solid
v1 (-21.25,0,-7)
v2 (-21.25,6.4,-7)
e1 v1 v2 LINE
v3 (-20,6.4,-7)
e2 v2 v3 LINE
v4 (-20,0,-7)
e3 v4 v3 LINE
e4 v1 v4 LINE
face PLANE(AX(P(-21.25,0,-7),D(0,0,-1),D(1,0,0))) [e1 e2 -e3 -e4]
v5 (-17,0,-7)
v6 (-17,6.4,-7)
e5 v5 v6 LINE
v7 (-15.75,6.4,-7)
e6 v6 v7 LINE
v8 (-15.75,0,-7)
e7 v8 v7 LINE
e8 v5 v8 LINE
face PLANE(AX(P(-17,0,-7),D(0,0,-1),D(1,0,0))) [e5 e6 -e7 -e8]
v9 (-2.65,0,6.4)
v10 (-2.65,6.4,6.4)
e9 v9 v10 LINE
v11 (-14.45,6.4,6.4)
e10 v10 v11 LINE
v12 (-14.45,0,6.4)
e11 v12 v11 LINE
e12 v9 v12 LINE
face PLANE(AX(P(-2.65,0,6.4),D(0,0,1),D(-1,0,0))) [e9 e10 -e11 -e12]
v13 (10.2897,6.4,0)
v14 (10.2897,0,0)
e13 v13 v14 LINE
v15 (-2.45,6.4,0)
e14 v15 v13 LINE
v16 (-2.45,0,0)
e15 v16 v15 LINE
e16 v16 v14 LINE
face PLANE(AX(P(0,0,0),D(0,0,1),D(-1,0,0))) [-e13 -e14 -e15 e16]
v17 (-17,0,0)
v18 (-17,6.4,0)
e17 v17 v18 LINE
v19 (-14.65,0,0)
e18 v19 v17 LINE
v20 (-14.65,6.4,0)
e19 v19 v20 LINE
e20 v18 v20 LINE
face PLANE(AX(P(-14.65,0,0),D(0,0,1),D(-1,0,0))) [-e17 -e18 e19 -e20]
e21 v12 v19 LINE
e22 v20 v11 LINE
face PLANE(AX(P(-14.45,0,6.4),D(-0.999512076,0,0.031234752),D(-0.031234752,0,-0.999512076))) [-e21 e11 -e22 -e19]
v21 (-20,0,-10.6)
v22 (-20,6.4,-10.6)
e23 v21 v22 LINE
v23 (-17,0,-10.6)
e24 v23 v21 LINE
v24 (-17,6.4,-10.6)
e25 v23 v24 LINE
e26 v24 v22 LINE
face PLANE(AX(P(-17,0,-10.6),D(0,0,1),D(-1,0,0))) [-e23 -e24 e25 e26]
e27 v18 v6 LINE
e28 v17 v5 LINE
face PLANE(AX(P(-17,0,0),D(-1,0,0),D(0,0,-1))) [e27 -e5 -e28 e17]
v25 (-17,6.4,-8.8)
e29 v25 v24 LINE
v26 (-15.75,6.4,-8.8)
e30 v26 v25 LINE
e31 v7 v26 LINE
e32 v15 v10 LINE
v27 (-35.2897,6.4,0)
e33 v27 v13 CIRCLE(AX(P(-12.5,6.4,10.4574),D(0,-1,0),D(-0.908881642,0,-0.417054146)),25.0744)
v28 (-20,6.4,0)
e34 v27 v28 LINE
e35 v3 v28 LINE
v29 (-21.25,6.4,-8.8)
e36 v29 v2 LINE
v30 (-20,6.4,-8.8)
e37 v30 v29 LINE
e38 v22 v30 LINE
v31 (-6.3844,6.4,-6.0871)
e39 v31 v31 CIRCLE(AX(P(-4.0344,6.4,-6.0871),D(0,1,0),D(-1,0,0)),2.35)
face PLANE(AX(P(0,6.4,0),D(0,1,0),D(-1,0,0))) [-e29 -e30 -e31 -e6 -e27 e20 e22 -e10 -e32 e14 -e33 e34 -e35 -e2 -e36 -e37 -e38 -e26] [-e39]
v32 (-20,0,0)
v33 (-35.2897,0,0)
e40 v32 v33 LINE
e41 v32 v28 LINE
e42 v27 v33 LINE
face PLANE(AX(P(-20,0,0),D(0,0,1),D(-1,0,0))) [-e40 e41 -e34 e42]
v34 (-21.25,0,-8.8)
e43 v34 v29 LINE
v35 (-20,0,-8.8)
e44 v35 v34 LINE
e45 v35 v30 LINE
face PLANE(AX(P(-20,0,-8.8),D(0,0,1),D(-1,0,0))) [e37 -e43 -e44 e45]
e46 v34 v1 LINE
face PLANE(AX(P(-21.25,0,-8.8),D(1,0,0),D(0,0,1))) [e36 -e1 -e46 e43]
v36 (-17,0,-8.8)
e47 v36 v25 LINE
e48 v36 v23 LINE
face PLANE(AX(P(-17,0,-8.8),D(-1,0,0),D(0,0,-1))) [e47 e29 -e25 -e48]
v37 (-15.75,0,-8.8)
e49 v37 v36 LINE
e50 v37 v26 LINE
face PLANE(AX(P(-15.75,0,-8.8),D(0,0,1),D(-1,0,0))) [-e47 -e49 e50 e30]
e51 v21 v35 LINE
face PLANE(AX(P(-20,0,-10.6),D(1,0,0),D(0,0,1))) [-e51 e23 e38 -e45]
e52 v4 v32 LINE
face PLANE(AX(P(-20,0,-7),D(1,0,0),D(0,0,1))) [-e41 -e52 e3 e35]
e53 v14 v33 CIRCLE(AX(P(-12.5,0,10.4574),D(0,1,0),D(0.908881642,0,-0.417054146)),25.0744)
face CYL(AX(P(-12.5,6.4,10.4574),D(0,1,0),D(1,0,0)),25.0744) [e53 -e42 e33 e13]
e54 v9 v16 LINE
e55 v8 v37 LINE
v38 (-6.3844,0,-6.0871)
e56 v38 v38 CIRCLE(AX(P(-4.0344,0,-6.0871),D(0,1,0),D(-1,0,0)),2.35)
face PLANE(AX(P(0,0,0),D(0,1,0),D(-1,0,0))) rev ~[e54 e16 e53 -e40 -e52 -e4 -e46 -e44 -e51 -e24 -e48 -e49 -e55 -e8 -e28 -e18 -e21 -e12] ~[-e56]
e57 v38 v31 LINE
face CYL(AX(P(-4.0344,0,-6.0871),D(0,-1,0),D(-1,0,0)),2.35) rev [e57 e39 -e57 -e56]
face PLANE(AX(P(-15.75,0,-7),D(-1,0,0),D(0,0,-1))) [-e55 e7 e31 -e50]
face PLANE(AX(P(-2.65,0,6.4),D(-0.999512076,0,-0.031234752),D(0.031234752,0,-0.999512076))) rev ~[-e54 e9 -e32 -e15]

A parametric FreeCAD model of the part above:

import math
import FreeCAD as App
import Part
import Sketcher

V = App.Vector
Q = App.Units.Quantity


def edges_at(feature, points):
    """Names of the edges that pass closest to the given points."""
    edges = feature.Shape.Edges
    near = lambda p: min(range(len(edges)), key=lambda i: edges[i].distToShape(Part.Vertex(*p))[0])
    return sorted({f"Edge{near(p) + 1}" for p in points})


def add_polygon(sketch, points):
    """Adds a closed chain of lines whose ends are joined by coincident constraints."""
    first, n = sketch.GeometryCount, len(points)
    for a, b in zip(points, points[1:] + points[:1]):
        sketch.addGeometry(Part.LineSegment(App.Vector(*a, 0), App.Vector(*b, 0)), False)
    for i in range(n):
        sketch.addConstraint(Sketcher.Constraint("Coincident", first + i, 2, first + (i + 1) % n, 1))

doc = App.newDocument("Part")
body = doc.addObject("PartDesign::Body", "Body")

sketch1 = body.newObject("Sketcher::SketchObject", "Sketch")
sketch1.AttachmentSupport = (doc.getObject("XZ_Plane"), [""])
sketch1.MapMode = "FlatFace"
add_polygon(sketch1, [(-2.35, 0), (0, 0), (0, -15), (-25, -15), (-25, 0), (-20, 0), (-20, -7), (-21.25, -7), (-21.25, -8.8), (-20, -8.8), (-20, -10.6), (-17, -10.6), (-17, -8.8), (-15.75, -8.8), (-15.75, -7), (-17, -7), (-17, 0), (-14.75, 0), (-14.45, 6.4), (-2.65, 6.4)])
sketch1.addGeometry(Part.Circle(V(-4.0344, -6.0871, 0), V(0, 0, 1), 2.35), False)
sketch1.addConstraint(Sketcher.Constraint("Horizontal", 0))
sketch1.addConstraint(Sketcher.Constraint("Vertical", 1))
sketch1.addConstraint(Sketcher.Constraint("Horizontal", 2))
sketch1.addConstraint(Sketcher.Constraint("Vertical", 3))
sketch1.addConstraint(Sketcher.Constraint("Horizontal", 4))
sketch1.addConstraint(Sketcher.Constraint("Vertical", 5))
sketch1.addConstraint(Sketcher.Constraint("Horizontal", 6))
sketch1.addConstraint(Sketcher.Constraint("Vertical", 7))
sketch1.addConstraint(Sketcher.Constraint("Horizontal", 8))
sketch1.addConstraint(Sketcher.Constraint("Vertical", 9))
sketch1.addConstraint(Sketcher.Constraint("Horizontal", 10))
sketch1.addConstraint(Sketcher.Constraint("Vertical", 11))
sketch1.addConstraint(Sketcher.Constraint("Horizontal", 12))
sketch1.addConstraint(Sketcher.Constraint("Vertical", 13))
sketch1.addConstraint(Sketcher.Constraint("Horizontal", 14))
sketch1.addConstraint(Sketcher.Constraint("Vertical", 15))
sketch1.addConstraint(Sketcher.Constraint("Horizontal", 16))
sketch1.addConstraint(Sketcher.Constraint("Horizontal", 18))
sketch1.addConstraint(Sketcher.Constraint("Coincident", 0, 2, -1, 1))
sketch1.addConstraint(Sketcher.Constraint("PointOnObject", 3, 2, -1))
sketch1.addConstraint(Sketcher.Constraint("PointOnObject", 15, 2, -1))
sketch1.addConstraint(Sketcher.Constraint("Horizontal", 8, 2, 11, 2))
sketch1.addConstraint(Sketcher.Constraint("Horizontal", 6, 2, 13, 2))
sketch1.addConstraint(Sketcher.Constraint("Vertical", 5, 2, 8, 2))
sketch1.addConstraint(Sketcher.Constraint("Vertical", 11, 2, 14, 2))
sketch1.addConstraint(Sketcher.Constraint("Equal", 8, 12))
sketch1.addConstraint(Sketcher.Constraint("Equal", 7, 9))
sketch1.addConstraint(Sketcher.Constraint("Equal", 17, 19))
sketch1.addConstraint(Sketcher.Constraint("Diameter", 20, 4.7))
sketch1.addConstraint(Sketcher.Constraint("DistanceX", 2, 2, 2, 1, 25.0))
sketch1.addConstraint(Sketcher.Constraint("DistanceX", 4, 1, 4, 2, 5.0))
sketch1.addConstraint(Sketcher.Constraint("DistanceX", 10, 1, 10, 2, 3.0))
sketch1.addConstraint(Sketcher.Constraint("DistanceY", 1, 2, 1, 1, 15.0))
sketch1.addConstraint(Sketcher.Constraint("DistanceY", 5, 2, 5, 1, 7.0))
sketch1.addConstraint(Sketcher.Constraint("DistanceX", 18, 1, 18, 2, 11.8))
sketch1.addConstraint(Sketcher.Constraint("DistanceY", 7, 2, 7, 1, 1.8))
sketch1.addConstraint(Sketcher.Constraint("DistanceX", 0, 1, 0, 2, 2.35))
sketch1.addConstraint(Sketcher.Constraint("DistanceX", 6, 2, 6, 1, 1.25))
sketch1.addConstraint(Sketcher.Constraint("DistanceX", 16, 1, 16, 2, 2.25))
sketch1.addConstraint(Sketcher.Constraint("DistanceY", -1, 1, 17, 2, 6.4))
sketch1.addConstraint(Sketcher.Constraint("DistanceY", 20, 3, -1, 1, 6.087))
sketch1.addConstraint(Sketcher.Constraint("DistanceX", 20, 3, -1, 1, 4.0344))
pad1 = body.newObject("PartDesign::Pad", "Pad")
pad1.Profile = sketch1
pad1.Length = 6.4
pad1.Reversed = True
doc.recompute()

fillet = body.newObject("PartDesign::Fillet", "Fillet")
fillet.Base = (pad1, edges_at(pad1, [(-25, 3.2, -15), (0, 3.2, -15)]))
fillet.Radius = 2

sketch2 = body.newObject("Sketcher::SketchObject", "Sketch001")
sketch2.AttachmentSupport = (doc.getObject("XZ_Plane"), [""])
sketch2.MapMode = "FlatFace"
sketch2.AttachmentOffset = App.Placement(V(0, 0, -6.4), App.Rotation())
sketch2.addGeometry(Part.LineSegment(V(-25, 0, 0), V(-25, -11.2791, 0)), False)
sketch2.addGeometry(Part.ArcOfCircle(Part.Circle(V(-12.5, 10.4574, 0), V(0, 0, 1), 25.0744), math.radians(-155.351257), math.radians(-119.901898)), False)
sketch2.addGeometry(Part.LineSegment(V(-35.2897, 0, 0), V(-25, 0, 0)), False)
sketch2.addGeometry(Part.ArcOfCircle(Part.Circle(V(-12.5, 10.4574, 0), V(0, 0, 1), 25.0744), math.radians(-60.098102), math.radians(-24.648743)), False)
sketch2.addGeometry(Part.LineSegment(V(0, -11.2791, 0), V(0, 0, 0)), False)
sketch2.addGeometry(Part.LineSegment(V(0, 0, 0), V(10.2897, 0, 0)), False)
sketch2.addConstraint(Sketcher.Constraint("Coincident", 0, 2, 1, 2))
sketch2.addConstraint(Sketcher.Constraint("Coincident", 1, 1, 2, 1))
sketch2.addConstraint(Sketcher.Constraint("Coincident", 2, 2, 0, 1))
sketch2.addConstraint(Sketcher.Constraint("Coincident", 3, 1, 4, 1))
sketch2.addConstraint(Sketcher.Constraint("Coincident", 4, 2, 5, 1))
sketch2.addConstraint(Sketcher.Constraint("Coincident", 5, 2, 3, 2))
sketch2.addConstraint(Sketcher.Constraint("Vertical", 0))
sketch2.addConstraint(Sketcher.Constraint("Horizontal", 2))
sketch2.addConstraint(Sketcher.Constraint("Vertical", 4))
sketch2.addConstraint(Sketcher.Constraint("Horizontal", 5))
sketch2.addConstraint(Sketcher.Constraint("Coincident", 4, 2, -1, 1))
sketch2.addConstraint(Sketcher.Constraint("Coincident", 3, 3, 1, 3))
sketch2.addConstraint(Sketcher.Constraint("Equal", 1, 3))
sketch2.addConstraint(Sketcher.Constraint("PointOnObject", 1, 1, -1))
sketch2.addConstraint(Sketcher.Constraint("Horizontal", 0, 2, 3, 1))
sketch2.addConstraint(Sketcher.Constraint("DistanceX", 1, 3, -1, 1, 12.5))
sketch2.addConstraint(Sketcher.Constraint("Radius", 1, 25.0744))
sketch2.addConstraint(Sketcher.Constraint("DistanceY", 0, 2, 0, 1, 11.279))
pad2 = body.newObject("PartDesign::Pad", "Pad001")
pad2.Profile = sketch2
pad2.Length = 6.4

sketch3 = body.newObject("Sketcher::SketchObject", "Sketch002")
sketch3.AttachmentSupport = (doc.getObject("XZ_Plane"), [""])
sketch3.MapMode = "FlatFace"
sketch3.AttachmentOffset = App.Placement(V(0, 0, -6.4), App.Rotation())
sketch3.addGeometry(Part.LineSegment(V(0, -11.2791, 0), V(0, -13, 0)), False)
sketch3.addGeometry(Part.ArcOfCircle(Part.Circle(V(-2, -13, 0), V(0, 0, 1), 2), math.radians(-90), math.radians(0)), False)
sketch3.addGeometry(Part.LineSegment(V(-2, -15, 0), V(-23, -15, 0)), False)
sketch3.addGeometry(Part.ArcOfCircle(Part.Circle(V(-23, -13, 0), V(0, 0, 1), 2), math.radians(180), math.radians(270)), False)
sketch3.addGeometry(Part.LineSegment(V(-25, -13, 0), V(-25, -11.2791, 0)), False)
sketch3.addGeometry(Part.ArcOfCircle(Part.Circle(V(-12.5, 10.4574, 0), V(0, 0, 1), 25.0744), math.radians(-119.901898), math.radians(-60.098102)), False)
sketch3.addConstraint(Sketcher.Constraint("Tangent", 0, 2, 1, 2))
sketch3.addConstraint(Sketcher.Constraint("Tangent", 1, 1, 2, 1))
sketch3.addConstraint(Sketcher.Constraint("Tangent", 2, 2, 3, 2))
sketch3.addConstraint(Sketcher.Constraint("Tangent", 3, 1, 4, 1))
sketch3.addConstraint(Sketcher.Constraint("Coincident", 4, 2, 5, 1))
sketch3.addConstraint(Sketcher.Constraint("Coincident", 5, 2, 0, 1))
sketch3.addConstraint(Sketcher.Constraint("Vertical", 0))
sketch3.addConstraint(Sketcher.Constraint("Horizontal", 2))
sketch3.addConstraint(Sketcher.Constraint("Vertical", 4))
sketch3.addConstraint(Sketcher.Constraint("Equal", 1, 3))
sketch3.addConstraint(Sketcher.Constraint("PointOnObject", 0, 2, -2))
sketch3.addConstraint(Sketcher.Constraint("Horizontal", 4, 2, 5, 2))
sketch3.addConstraint(Sketcher.Constraint("Radius", 1, 2.0))
sketch3.addConstraint(Sketcher.Constraint("DistanceX", 2, 2, 2, 1, 21.0))
sketch3.addConstraint(Sketcher.Constraint("DistanceY", 1, 3, -1, 1, 13.0))
sketch3.addConstraint(Sketcher.Constraint("Radius", 5, 25.0744))
sketch3.addConstraint(Sketcher.Constraint("DistanceY", 0, 2, 0, 1, 1.721))
pocket1 = body.newObject("PartDesign::Pocket", "Pocket")
pocket1.Profile = sketch3
pocket1.Length = 6.4
pocket1.Reversed = True

sketch4 = body.newObject("Sketcher::SketchObject", "Sketch003")
sketch4.AttachmentSupport = (doc.getObject("XZ_Plane"), [""])
sketch4.MapMode = "FlatFace"
add_polygon(sketch4, [(-2.45, 0), (-2.35, 0), (-2.65, 6.4)])
add_polygon(sketch4, [(-14.65, 0), (-14.45, 6.4), (-14.75, 0)])
sketch4.addConstraint(Sketcher.Constraint("Horizontal", 0))
sketch4.addConstraint(Sketcher.Constraint("Horizontal", 5))
sketch4.addConstraint(Sketcher.Constraint("PointOnObject", 0, 2, -1))
sketch4.addConstraint(Sketcher.Constraint("PointOnObject", 4, 2, -1))
sketch4.addConstraint(Sketcher.Constraint("Horizontal", 1, 2, 3, 2))
sketch4.addConstraint(Sketcher.Constraint("Equal", 0, 5))
sketch4.addConstraint(Sketcher.Constraint("Equal", 2, 3))
sketch4.addConstraint(Sketcher.Constraint("DistanceX", 0, 1, 0, 2, 0.1))
sketch4.addConstraint(Sketcher.Constraint("DistanceX", 3, 2, 2, 2, 12.0))
sketch4.addConstraint(Sketcher.Constraint("DistanceY", -1, 1, 1, 2, 6.4))
sketch4.addConstraint(Sketcher.Constraint("Angle", 2, Q("-88.21 deg")))
sketch4.addConstraint(Sketcher.Constraint("DistanceX", 0, 2, -1, 1, 2.35))
pocket2 = body.newObject("PartDesign::Pocket", "Pocket001")
pocket2.Profile = sketch4
pocket2.Length = 10

doc.recompute()
